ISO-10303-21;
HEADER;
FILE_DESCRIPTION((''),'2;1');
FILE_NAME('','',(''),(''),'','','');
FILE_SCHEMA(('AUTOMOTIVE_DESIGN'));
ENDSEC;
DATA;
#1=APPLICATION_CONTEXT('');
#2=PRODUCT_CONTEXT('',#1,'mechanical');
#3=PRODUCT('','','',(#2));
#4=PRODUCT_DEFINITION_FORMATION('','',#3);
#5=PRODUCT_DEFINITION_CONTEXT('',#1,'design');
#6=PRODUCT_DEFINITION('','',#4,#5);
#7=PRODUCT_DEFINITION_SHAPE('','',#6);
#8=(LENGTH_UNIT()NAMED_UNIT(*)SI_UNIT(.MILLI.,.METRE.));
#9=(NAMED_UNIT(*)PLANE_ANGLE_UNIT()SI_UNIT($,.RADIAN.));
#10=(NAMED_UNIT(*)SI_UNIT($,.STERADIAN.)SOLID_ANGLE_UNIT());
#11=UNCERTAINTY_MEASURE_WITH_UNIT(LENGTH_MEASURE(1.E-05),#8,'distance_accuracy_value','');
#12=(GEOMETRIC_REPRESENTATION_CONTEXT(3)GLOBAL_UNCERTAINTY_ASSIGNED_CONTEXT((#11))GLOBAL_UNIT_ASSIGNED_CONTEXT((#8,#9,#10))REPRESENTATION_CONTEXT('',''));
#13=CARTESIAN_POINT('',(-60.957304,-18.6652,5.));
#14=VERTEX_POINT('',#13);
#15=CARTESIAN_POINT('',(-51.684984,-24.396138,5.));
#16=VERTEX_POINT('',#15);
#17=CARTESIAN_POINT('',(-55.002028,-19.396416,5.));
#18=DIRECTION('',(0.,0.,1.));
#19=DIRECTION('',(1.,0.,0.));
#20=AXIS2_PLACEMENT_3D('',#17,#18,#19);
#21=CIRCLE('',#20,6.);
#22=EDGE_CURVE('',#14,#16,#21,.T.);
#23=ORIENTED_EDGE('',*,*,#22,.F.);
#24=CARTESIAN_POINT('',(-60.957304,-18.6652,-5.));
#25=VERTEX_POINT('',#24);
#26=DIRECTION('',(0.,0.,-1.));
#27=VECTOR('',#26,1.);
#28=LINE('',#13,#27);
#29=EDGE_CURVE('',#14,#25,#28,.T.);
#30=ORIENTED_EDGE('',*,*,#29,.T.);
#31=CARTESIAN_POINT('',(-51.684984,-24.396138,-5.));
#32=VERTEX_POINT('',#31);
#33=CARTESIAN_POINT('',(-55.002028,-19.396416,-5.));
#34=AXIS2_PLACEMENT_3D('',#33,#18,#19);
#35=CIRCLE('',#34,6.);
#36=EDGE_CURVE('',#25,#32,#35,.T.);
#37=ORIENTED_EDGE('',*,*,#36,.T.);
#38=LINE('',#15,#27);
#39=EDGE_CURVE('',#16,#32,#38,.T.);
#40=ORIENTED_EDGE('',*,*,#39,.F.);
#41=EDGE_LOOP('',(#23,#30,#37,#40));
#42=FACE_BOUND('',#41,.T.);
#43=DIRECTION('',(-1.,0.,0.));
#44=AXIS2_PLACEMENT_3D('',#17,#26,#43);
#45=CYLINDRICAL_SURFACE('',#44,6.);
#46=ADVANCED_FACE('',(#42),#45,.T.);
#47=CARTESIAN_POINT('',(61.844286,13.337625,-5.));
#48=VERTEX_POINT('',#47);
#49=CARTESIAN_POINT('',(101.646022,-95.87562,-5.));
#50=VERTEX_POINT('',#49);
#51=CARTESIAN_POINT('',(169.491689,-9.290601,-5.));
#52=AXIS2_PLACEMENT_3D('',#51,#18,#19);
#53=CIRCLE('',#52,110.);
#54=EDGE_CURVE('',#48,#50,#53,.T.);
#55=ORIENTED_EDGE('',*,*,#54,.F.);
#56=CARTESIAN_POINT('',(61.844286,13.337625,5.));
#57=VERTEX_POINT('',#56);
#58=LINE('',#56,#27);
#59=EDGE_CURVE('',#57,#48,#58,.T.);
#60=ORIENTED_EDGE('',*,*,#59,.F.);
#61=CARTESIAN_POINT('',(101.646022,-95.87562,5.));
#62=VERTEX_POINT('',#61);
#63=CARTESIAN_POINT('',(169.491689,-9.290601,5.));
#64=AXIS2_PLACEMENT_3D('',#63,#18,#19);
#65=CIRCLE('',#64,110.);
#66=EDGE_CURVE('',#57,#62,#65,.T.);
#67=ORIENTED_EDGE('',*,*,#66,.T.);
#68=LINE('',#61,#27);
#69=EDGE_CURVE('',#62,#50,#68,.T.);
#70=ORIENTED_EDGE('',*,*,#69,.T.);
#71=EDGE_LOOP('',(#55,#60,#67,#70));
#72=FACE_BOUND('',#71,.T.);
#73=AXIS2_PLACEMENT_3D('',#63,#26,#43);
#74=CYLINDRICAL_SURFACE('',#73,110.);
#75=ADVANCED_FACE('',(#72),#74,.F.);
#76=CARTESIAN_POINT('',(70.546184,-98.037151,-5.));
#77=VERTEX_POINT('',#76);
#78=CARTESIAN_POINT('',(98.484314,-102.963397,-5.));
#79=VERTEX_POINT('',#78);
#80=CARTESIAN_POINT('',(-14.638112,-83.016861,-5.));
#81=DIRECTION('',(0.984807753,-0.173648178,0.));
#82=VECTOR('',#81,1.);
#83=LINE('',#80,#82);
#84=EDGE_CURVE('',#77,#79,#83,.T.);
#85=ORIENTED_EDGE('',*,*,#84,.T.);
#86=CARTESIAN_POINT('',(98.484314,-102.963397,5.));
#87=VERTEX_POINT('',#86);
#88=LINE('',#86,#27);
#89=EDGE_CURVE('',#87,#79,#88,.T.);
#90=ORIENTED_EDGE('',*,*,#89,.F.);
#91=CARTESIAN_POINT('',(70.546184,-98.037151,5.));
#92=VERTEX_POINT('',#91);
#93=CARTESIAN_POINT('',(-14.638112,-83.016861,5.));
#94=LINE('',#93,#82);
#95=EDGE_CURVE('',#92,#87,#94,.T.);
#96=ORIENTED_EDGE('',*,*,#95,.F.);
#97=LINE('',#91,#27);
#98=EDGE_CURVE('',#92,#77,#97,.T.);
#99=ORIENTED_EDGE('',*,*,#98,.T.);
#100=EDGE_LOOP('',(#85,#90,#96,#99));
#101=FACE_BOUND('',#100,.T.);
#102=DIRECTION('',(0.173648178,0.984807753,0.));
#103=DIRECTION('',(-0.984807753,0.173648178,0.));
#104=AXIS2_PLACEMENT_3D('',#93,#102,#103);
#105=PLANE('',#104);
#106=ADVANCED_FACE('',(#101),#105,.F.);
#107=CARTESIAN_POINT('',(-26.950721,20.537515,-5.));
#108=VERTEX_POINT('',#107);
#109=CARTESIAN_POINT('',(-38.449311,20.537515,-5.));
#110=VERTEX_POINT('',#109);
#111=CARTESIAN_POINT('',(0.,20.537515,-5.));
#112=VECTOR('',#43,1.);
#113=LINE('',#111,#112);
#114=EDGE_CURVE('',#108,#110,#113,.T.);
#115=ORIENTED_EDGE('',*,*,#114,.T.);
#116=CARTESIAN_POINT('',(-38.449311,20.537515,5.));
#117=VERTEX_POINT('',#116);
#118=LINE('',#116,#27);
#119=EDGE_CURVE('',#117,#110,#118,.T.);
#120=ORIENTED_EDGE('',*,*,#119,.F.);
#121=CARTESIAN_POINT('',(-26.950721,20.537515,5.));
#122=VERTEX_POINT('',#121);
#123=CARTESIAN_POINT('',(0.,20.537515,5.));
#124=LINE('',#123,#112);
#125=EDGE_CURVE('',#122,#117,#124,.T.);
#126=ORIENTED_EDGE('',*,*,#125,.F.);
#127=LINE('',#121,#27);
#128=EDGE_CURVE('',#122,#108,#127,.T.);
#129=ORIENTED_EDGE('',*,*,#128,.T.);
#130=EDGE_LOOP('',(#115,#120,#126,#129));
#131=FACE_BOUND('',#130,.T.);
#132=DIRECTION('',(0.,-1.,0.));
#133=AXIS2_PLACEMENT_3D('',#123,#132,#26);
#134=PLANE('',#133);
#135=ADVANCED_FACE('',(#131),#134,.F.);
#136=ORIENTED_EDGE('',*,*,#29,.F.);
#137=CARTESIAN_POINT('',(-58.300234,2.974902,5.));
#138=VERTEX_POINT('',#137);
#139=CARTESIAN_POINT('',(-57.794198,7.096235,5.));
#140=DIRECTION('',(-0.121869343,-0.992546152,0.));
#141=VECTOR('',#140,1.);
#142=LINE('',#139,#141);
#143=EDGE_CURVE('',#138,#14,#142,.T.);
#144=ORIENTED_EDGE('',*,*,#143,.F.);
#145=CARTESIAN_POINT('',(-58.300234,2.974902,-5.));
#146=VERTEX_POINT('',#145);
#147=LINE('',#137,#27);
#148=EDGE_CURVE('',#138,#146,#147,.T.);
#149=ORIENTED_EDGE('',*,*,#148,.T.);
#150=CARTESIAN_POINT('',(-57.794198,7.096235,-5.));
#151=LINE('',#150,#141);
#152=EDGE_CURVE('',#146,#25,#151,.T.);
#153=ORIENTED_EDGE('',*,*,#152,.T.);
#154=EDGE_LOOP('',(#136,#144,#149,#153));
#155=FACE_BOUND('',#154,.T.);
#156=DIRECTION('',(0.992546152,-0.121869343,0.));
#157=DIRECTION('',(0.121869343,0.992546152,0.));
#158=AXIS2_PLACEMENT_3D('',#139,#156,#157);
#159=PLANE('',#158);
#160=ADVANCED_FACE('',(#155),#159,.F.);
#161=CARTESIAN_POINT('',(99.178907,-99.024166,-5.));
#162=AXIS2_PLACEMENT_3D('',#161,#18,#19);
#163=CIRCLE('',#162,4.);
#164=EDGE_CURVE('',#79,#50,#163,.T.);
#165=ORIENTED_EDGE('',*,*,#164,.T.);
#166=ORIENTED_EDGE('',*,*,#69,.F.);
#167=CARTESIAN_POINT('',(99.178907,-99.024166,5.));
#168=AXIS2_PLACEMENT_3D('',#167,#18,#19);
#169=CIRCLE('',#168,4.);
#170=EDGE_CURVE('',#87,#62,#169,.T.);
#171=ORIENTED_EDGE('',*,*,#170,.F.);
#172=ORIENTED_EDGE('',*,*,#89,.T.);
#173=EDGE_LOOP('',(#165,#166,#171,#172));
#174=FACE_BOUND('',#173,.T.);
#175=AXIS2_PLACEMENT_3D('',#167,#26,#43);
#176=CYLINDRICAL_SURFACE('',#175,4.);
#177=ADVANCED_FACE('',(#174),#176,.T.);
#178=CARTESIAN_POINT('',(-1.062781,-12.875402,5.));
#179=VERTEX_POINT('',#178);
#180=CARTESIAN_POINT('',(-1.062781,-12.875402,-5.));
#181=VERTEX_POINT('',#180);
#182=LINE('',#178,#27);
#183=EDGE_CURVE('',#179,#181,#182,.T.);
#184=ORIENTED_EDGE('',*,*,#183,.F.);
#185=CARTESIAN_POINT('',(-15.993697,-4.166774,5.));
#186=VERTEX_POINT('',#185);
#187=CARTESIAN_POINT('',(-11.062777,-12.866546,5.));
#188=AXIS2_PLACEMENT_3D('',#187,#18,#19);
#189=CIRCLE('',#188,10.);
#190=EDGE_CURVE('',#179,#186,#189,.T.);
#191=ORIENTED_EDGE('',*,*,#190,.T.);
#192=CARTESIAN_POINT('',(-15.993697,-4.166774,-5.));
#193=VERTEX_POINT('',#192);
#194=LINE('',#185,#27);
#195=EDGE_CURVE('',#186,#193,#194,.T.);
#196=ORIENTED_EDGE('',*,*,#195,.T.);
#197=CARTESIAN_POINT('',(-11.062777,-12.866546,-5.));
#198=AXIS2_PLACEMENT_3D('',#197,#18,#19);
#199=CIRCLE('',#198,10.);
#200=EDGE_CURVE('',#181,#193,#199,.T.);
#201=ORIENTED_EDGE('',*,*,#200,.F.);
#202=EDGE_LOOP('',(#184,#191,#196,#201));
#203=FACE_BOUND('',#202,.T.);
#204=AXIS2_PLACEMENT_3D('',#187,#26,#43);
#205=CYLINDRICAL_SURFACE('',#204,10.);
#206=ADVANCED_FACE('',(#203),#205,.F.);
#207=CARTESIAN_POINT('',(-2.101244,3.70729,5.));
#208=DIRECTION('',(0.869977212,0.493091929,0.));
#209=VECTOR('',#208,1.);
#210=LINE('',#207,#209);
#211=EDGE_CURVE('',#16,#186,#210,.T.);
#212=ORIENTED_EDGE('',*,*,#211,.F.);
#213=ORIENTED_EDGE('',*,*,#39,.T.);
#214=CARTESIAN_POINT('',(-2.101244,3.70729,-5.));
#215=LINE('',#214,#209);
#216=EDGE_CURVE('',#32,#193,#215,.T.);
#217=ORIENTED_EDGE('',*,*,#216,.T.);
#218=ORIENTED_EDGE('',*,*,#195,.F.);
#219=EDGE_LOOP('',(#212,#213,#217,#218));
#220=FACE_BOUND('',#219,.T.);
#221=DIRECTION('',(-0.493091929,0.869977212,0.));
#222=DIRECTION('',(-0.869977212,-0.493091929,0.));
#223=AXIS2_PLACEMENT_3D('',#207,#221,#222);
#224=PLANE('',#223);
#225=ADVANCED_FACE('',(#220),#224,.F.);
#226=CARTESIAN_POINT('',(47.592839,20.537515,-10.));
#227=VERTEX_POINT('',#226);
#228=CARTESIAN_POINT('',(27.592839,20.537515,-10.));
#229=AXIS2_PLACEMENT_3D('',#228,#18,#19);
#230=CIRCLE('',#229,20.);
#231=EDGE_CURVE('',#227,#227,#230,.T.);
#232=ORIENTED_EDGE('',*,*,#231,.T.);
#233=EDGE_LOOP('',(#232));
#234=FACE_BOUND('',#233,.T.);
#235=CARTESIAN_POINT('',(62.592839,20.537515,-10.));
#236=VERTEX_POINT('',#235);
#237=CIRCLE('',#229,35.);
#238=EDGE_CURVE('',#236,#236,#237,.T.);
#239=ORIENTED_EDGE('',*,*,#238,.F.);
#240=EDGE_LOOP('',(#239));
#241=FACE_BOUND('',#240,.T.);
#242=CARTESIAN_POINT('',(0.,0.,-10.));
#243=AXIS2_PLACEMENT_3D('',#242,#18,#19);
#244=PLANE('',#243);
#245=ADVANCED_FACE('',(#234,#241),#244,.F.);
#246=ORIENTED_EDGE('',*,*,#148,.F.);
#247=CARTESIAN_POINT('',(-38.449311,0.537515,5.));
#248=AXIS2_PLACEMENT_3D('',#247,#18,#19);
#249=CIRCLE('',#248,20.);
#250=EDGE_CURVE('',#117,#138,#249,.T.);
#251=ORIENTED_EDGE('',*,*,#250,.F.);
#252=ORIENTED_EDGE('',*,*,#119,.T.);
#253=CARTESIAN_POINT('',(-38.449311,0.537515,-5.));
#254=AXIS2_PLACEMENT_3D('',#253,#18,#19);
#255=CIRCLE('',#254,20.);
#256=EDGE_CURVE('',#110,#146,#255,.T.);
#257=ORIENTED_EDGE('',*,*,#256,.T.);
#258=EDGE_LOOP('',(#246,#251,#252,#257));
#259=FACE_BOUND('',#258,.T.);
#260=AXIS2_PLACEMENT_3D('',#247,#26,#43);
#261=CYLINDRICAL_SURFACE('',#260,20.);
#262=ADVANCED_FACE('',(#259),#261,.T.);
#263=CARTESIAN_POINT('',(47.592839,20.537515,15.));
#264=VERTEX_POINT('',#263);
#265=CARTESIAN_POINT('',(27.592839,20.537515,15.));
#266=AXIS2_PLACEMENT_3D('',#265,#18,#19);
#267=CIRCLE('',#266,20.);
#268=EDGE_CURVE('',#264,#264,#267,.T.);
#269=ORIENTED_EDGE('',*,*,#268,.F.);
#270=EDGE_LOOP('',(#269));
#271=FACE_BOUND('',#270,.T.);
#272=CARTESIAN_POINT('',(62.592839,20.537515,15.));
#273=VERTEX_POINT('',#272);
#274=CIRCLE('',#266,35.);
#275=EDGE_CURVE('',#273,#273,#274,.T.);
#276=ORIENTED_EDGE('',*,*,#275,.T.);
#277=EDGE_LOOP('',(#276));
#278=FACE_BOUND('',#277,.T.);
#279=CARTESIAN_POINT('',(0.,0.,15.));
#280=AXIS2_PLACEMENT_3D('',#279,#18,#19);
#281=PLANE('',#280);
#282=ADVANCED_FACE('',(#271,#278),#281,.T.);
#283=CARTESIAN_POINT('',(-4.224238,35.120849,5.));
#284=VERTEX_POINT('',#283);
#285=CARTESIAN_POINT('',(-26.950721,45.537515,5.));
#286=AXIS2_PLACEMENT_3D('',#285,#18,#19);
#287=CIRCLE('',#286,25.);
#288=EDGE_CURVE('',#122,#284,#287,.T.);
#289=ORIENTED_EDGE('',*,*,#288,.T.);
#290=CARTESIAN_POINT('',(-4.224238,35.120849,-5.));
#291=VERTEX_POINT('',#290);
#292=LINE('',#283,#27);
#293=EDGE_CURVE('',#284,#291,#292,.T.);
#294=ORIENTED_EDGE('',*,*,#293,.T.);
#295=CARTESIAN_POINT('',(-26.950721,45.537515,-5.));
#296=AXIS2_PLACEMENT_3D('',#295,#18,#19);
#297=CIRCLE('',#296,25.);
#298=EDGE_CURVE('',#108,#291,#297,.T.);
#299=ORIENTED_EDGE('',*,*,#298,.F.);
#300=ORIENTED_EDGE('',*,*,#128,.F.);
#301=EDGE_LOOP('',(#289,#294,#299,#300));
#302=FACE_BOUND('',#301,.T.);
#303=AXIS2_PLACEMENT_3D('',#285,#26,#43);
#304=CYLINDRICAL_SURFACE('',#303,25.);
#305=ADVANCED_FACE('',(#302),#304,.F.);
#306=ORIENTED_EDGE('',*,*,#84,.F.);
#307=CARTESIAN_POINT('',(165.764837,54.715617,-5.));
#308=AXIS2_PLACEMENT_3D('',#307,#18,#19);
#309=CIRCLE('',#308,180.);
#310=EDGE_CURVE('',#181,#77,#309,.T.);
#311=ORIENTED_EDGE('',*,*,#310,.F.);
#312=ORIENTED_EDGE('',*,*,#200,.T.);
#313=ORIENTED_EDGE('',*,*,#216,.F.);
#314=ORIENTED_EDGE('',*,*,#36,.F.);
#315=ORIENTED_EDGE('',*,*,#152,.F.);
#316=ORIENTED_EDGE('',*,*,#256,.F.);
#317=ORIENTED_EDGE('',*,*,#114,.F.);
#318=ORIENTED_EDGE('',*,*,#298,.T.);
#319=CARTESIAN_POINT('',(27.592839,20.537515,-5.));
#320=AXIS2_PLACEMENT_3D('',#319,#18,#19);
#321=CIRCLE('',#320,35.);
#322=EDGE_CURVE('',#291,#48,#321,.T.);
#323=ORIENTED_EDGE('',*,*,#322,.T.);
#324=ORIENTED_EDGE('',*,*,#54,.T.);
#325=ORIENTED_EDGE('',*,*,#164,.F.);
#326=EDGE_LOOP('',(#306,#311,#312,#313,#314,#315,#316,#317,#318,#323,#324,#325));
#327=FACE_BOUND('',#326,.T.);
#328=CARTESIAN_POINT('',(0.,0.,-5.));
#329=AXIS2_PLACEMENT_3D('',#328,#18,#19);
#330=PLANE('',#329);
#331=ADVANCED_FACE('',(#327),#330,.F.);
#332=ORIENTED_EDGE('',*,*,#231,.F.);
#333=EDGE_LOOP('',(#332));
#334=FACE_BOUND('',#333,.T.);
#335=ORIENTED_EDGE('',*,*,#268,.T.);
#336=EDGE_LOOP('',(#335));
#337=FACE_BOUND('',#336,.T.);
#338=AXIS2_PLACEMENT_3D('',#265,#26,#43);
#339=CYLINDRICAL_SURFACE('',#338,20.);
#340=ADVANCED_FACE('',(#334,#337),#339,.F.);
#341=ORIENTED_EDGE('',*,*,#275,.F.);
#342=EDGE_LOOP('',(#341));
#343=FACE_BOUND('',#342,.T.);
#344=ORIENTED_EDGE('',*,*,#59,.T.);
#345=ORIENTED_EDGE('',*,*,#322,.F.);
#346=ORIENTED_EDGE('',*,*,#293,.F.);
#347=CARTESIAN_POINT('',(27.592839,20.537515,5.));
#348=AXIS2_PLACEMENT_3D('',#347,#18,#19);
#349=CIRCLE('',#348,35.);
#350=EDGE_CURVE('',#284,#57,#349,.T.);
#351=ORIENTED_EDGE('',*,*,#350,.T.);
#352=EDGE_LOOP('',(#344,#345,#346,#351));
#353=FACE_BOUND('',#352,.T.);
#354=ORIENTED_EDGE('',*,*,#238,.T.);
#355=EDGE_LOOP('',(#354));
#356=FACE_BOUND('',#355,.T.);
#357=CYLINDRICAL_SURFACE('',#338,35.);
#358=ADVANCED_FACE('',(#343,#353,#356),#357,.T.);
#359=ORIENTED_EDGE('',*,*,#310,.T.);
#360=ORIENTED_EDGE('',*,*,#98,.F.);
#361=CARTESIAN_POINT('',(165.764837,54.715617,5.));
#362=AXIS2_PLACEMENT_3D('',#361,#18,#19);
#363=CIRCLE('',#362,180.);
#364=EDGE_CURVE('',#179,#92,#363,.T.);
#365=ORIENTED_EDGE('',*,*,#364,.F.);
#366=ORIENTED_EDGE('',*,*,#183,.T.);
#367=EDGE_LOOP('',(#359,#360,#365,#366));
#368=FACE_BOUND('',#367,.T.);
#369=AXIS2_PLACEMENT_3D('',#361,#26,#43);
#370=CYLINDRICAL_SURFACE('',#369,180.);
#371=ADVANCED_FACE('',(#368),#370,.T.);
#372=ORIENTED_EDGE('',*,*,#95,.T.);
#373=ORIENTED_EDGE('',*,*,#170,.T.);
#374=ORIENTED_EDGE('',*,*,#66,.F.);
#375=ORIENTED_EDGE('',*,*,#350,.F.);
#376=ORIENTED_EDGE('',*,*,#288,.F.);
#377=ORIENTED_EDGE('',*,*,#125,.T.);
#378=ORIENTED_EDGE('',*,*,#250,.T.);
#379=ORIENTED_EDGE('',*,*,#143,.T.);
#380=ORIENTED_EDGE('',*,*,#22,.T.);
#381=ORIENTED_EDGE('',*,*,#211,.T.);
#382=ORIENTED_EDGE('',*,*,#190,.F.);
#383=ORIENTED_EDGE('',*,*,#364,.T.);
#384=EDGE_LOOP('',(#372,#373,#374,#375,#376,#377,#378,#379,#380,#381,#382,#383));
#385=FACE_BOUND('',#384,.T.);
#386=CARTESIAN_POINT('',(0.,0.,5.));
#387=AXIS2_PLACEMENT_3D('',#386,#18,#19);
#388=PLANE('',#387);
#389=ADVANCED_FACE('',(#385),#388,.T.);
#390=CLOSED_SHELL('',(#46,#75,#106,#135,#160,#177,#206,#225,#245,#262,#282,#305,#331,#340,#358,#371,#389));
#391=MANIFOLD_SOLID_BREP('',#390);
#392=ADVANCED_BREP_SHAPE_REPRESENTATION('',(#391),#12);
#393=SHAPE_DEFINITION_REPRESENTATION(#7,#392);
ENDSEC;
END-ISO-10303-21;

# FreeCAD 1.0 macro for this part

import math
import FreeCAD as App
import Part
import Sketcher
Q = App.Units.Quantity

doc = App.newDocument("Part")
body = doc.addObject("PartDesign::Body", "Body")

# Sketch on XY plane
sketch1 = body.newObject("Sketcher::SketchObject", "Sketch")
sketch1.AttachmentSupport = (doc.getObject("XY_Plane"), [""])
sketch1.MapMode = "FlatFace"
sketch1.addGeometry([
    Part.ArcOfCircle(Part.Circle(App.Vector(28, 21, 0), App.Vector(0, 0, 1), 35), math.radians(155), math.radians(180)),  # 0
    Part.ArcOfCircle(Part.Circle(App.Vector(28, 21, 0), App.Vector(0, 0, 1), 35), math.radians(180), math.radians(348)),  # 1
    Part.ArcOfCircle(Part.Circle(App.Vector(28, 21, 0), App.Vector(0, 0, 1), 35), math.radians(-11.87), math.radians(0)),  # 2
    Part.ArcOfCircle(Part.Circle(App.Vector(28, 21, 0), App.Vector(0, 0, 1), 35), math.radians(0), math.radians(155)),  # 3
    Part.Circle(App.Vector(28, 21, 0), App.Vector(0, 0, 1), 20),  # 4
], False)
sketch1.addConstraint([
    Sketcher.Constraint("Tangent", 0, 2, 1, 1),
    Sketcher.Constraint("Tangent", 1, 2, 2, 1),
    Sketcher.Constraint("Tangent", 2, 2, 3, 1),
    Sketcher.Constraint("Tangent", 3, 2, 0, 1),
    Sketcher.Constraint("Coincident", 4, 3, 0, 3),
    Sketcher.Constraint("Equal", 0, 1),
    Sketcher.Constraint("Horizontal", 4, 3, 0, 2),
    Sketcher.Constraint("Horizontal", 0, 2, 2, 2),
    Sketcher.Constraint("Diameter", 4, Q("40 mm")),
    Sketcher.Constraint("Radius", 0, Q("35 mm")),
    Sketcher.Constraint("DistanceX", -1, 1, 0, 3, Q("27.592839 mm")),
    Sketcher.Constraint("DistanceY", -1, 1, 3, 2, Q("35.120849 mm")),
    Sketcher.Constraint("DistanceY", 1, 2, 1, 3, Q("7.19989 mm")),
    Sketcher.Constraint("DistanceY", -1, 1, 0, 3, Q("20.537515 mm")),
])
pad1 = body.newObject("PartDesign::Pad", "Pad")
pad1.Profile = sketch1
pad1.Type = "TwoLengths"
pad1.Length = 15
pad1.Length2 = 10

# Sketch on XY plane
sketch2 = body.newObject("Sketcher::SketchObject", "Sketch001")
sketch2.AttachmentSupport = (doc.getObject("XY_Plane"), [""])
sketch2.MapMode = "FlatFace"
sketch2.addGeometry([
    Part.ArcOfCircle(Part.Circle(App.Vector(27.59, 20.54, 0), App.Vector(0, 0, 1), 35), math.radians(155), math.radians(348)),  # 0
    Part.ArcOfCircle(Part.Circle(App.Vector(-26.95, 45.54, 0), App.Vector(0, 0, 1), 25), math.radians(-90), math.radians(-25)),  # 1
    Part.LineSegment(App.Vector(-26.95, 20.54, 0), App.Vector(-38.45, 20.54, 0)),  # 2
    Part.ArcOfCircle(Part.Circle(App.Vector(-38.45, 0.54, 0), App.Vector(0, 0, 1), 20), math.radians(90), math.radians(173)),  # 3
    Part.LineSegment(App.Vector(-58.3, 2.97, 0), App.Vector(-60.96, -18.67, 0)),  # 4
    Part.ArcOfCircle(Part.Circle(App.Vector(-55, -19.4, 0), App.Vector(0, 0, 1), 6), math.radians(173), math.radians(304)),  # 5
    Part.LineSegment(App.Vector(-51.68, -24.4, 0), App.Vector(-15.99, -4.17, 0)),  # 6
    Part.ArcOfCircle(Part.Circle(App.Vector(-11.06, -12.87, 0), App.Vector(0, 0, 1), 10), math.radians(118.7), math.radians(119.54)),  # 7
    Part.ArcOfCircle(Part.Circle(App.Vector(-11.06, -12.87, 0), App.Vector(0, 0, 1), 10), math.radians(0), math.radians(119)),  # 8
    Part.ArcOfCircle(Part.Circle(App.Vector(165.76, 54.72, 0), App.Vector(0, 0, 1), 180), math.radians(-158), math.radians(-122)),  # 9
    Part.LineSegment(App.Vector(70.55, -98.04, 0), App.Vector(98.48, -102.96, 0)),  # 10
    Part.ArcOfCircle(Part.Circle(App.Vector(99.18, -99.02, 0), App.Vector(0, 0, 1), 4), math.radians(-100), math.radians(52)),  # 11
    Part.ArcOfCircle(Part.Circle(App.Vector(169.49, -9.29, 0), App.Vector(0, 0, 1), 110), math.radians(168), math.radians(232)),  # 12
], False)
sketch2.addConstraint([
    Sketcher.Constraint("Tangent", 0, 1, 1, 2),
    Sketcher.Constraint("Tangent", 1, 1, 2, 1),
    Sketcher.Constraint("Tangent", 2, 2, 3, 1),
    Sketcher.Constraint("Tangent", 3, 2, 4, 1),
    Sketcher.Constraint("Tangent", 4, 2, 5, 1),
    Sketcher.Constraint("Coincident", 5, 2, 6, 1),
    Sketcher.Constraint("Tangent", 6, 2, 7, 2),
    Sketcher.Constraint("Tangent", 7, 1, 8, 2),
    Sketcher.Constraint("Coincident", 8, 1, 9, 1),
    Sketcher.Constraint("Coincident", 9, 2, 10, 1),
    Sketcher.Constraint("Tangent", 10, 2, 11, 1),
    Sketcher.Constraint("Tangent", 11, 2, 12, 2),
    Sketcher.Constraint("Tangent", 12, 1, 0, 2),
    Sketcher.Constraint("Horizontal", 2),
    Sketcher.Constraint("Horizontal", 0, 3, 1, 1),
    Sketcher.Constraint("Radius", 0, Q("35 mm")),
    Sketcher.Constraint("Radius", 1, Q("25 mm")),
    Sketcher.Constraint("Radius", 3, Q("20 mm")),
    Sketcher.Constraint("Radius", 5, Q("6 mm")),
    Sketcher.Constraint("Radius", 8, Q("10 mm")),
    Sketcher.Constraint("Radius", 9, Q("180 mm")),
    Sketcher.Constraint("Radius", 11, Q("4 mm")),
    Sketcher.Constraint("Radius", 12, Q("110 mm")),
    Sketcher.Constraint("Angle", 4, Q("-97 deg")),
    Sketcher.Constraint("Angle", 10, Q("-10 deg")),
    Sketcher.Constraint("Radius", 7, Q("10.000003 mm")),
    Sketcher.Constraint("DistanceX", 2, 2, 2, 1, Q("11.49859 mm")),
    Sketcher.Constraint("DistanceY", 12, 3, -1, 1, Q("9.290601 mm")),
    Sketcher.Constraint("DistanceY", 4, 2, -1, 1, Q("18.6652 mm")),
    Sketcher.Constraint("DistanceY", 8, 1, -1, 1, Q("12.875402 mm")),
    Sketcher.Constraint("DistanceY", 0, 3, 9, 3, Q("34.178102 mm")),
    Sketcher.Constraint("DistanceY", 9, 2, 7, 3, Q("85.170602 mm")),
    Sketcher.Constraint("Distance", 10, Q("28.369121 mm")),
    Sketcher.Constraint("DistanceX", -1, 1, 0, 3, Q("27.592839 mm")),
    Sketcher.Constraint("DistanceY", 7, 3, -1, 1, Q("12.866549 mm")),
    Sketcher.Constraint("DistanceX", -1, 1, 12, 3, Q("169.491689 mm")),
    Sketcher.Constraint("DistanceY", 5, 2, -1, 1, Q("24.396138 mm")),
    Sketcher.Constraint("DistanceX", 7, 1, -1, 1, Q("15.864662 mm")),
])
pad2 = body.newObject("PartDesign::Pad", "Pad001")
pad2.Profile = sketch2
pad2.Type = "TwoLengths"
pad2.Length = 5
pad2.Length2 = 5

doc.recompute()
